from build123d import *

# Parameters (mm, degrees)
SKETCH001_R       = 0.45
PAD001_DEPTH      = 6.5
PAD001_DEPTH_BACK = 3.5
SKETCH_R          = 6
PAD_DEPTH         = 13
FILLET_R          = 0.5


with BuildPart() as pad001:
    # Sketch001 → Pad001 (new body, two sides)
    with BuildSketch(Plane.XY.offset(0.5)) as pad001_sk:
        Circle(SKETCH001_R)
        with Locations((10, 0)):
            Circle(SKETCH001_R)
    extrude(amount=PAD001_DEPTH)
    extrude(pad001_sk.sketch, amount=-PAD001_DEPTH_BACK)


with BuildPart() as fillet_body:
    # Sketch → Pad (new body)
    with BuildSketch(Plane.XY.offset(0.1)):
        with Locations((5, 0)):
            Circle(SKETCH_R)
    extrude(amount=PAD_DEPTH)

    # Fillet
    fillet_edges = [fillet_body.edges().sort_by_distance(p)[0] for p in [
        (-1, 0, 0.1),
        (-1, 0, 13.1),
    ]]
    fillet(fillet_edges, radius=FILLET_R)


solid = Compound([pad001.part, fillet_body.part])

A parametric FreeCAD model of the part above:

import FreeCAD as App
import Part
import Sketcher
from FreeCAD import Vector
Q = App.Units.Quantity


def edges_at(feature, points):
    """Names of the edges that pass closest to the given points."""
    edges = feature.Shape.Edges
    near = lambda p: min(range(len(edges)), key=lambda i: edges[i].distToShape(Part.Vertex(*p))[0])
    return sorted({f"Edge{near(p) + 1}" for p in points})

doc = App.newDocument("Part")
body = doc.addObject("PartDesign::Body", "Body")
body.AllowCompound = True

# Sketch on XY plane
sketch1 = body.newObject("Sketcher::SketchObject", "Sketch")
sketch1.AttachmentSupport = (doc.getObject("XY_Plane"), [""])
sketch1.MapMode = "FlatFace"
sketch1.AttachmentOffset = App.Placement(Vector(0, 0, 0.5), App.Rotation())
sketch1.addGeometry(Part.Circle(Vector(0, 0, 0), Vector(0, 0, 1), 0.45), False)
sketch1.addGeometry(Part.Circle(Vector(10, 0, 0), Vector(0, 0, 1), 0.45), False)
sketch1.addConstraint(Sketcher.Constraint("Coincident", 0, 3, -1, 1))
sketch1.addConstraint(Sketcher.Constraint("Equal", 0, 1))
sketch1.addConstraint(Sketcher.Constraint("PointOnObject", 1, 3, -1))
sketch1.addConstraint(Sketcher.Constraint("Diameter", 0, Q("0.9 mm")))
sketch1.addConstraint(Sketcher.Constraint("DistanceX", -1, 1, 1, 3, Q("10 mm")))
pad1 = body.newObject("PartDesign::Pad", "Pad")
pad1.Profile = sketch1
pad1.Type = "TwoLengths"
pad1.Length = 6.5
pad1.Length2 = 3.5
body2 = doc.addObject("PartDesign::Body", "Body001")

# Sketch on XY plane
sketch2 = body2.newObject("Sketcher::SketchObject", "Sketch001")
sketch2.AttachmentSupport = (doc.getObject("XY_Plane001"), [""])
sketch2.MapMode = "FlatFace"
sketch2.AttachmentOffset = App.Placement(Vector(0, 0, 0.1), App.Rotation())
sketch2.addGeometry(Part.Circle(Vector(5, 0, 0), Vector(0, 0, 1), 6), False)
sketch2.addConstraint(Sketcher.Constraint("PointOnObject", 0, 3, -1))
sketch2.addConstraint(Sketcher.Constraint("Diameter", 0, Q("12 mm")))
sketch2.addConstraint(Sketcher.Constraint("DistanceX", -1, 1, 0, 3, Q("5 mm")))
pad2 = body2.newObject("PartDesign::Pad", "Pad001")
pad2.Profile = sketch2
pad2.Length = 13
doc.recompute()

fillet = body2.newObject("PartDesign::Fillet", "Fillet")
fillet.Base = (pad2, edges_at(pad2, [(-1, 0, 0.1), (-1, 0, 13.1)]))
fillet.Radius = 0.5

doc.recompute()
